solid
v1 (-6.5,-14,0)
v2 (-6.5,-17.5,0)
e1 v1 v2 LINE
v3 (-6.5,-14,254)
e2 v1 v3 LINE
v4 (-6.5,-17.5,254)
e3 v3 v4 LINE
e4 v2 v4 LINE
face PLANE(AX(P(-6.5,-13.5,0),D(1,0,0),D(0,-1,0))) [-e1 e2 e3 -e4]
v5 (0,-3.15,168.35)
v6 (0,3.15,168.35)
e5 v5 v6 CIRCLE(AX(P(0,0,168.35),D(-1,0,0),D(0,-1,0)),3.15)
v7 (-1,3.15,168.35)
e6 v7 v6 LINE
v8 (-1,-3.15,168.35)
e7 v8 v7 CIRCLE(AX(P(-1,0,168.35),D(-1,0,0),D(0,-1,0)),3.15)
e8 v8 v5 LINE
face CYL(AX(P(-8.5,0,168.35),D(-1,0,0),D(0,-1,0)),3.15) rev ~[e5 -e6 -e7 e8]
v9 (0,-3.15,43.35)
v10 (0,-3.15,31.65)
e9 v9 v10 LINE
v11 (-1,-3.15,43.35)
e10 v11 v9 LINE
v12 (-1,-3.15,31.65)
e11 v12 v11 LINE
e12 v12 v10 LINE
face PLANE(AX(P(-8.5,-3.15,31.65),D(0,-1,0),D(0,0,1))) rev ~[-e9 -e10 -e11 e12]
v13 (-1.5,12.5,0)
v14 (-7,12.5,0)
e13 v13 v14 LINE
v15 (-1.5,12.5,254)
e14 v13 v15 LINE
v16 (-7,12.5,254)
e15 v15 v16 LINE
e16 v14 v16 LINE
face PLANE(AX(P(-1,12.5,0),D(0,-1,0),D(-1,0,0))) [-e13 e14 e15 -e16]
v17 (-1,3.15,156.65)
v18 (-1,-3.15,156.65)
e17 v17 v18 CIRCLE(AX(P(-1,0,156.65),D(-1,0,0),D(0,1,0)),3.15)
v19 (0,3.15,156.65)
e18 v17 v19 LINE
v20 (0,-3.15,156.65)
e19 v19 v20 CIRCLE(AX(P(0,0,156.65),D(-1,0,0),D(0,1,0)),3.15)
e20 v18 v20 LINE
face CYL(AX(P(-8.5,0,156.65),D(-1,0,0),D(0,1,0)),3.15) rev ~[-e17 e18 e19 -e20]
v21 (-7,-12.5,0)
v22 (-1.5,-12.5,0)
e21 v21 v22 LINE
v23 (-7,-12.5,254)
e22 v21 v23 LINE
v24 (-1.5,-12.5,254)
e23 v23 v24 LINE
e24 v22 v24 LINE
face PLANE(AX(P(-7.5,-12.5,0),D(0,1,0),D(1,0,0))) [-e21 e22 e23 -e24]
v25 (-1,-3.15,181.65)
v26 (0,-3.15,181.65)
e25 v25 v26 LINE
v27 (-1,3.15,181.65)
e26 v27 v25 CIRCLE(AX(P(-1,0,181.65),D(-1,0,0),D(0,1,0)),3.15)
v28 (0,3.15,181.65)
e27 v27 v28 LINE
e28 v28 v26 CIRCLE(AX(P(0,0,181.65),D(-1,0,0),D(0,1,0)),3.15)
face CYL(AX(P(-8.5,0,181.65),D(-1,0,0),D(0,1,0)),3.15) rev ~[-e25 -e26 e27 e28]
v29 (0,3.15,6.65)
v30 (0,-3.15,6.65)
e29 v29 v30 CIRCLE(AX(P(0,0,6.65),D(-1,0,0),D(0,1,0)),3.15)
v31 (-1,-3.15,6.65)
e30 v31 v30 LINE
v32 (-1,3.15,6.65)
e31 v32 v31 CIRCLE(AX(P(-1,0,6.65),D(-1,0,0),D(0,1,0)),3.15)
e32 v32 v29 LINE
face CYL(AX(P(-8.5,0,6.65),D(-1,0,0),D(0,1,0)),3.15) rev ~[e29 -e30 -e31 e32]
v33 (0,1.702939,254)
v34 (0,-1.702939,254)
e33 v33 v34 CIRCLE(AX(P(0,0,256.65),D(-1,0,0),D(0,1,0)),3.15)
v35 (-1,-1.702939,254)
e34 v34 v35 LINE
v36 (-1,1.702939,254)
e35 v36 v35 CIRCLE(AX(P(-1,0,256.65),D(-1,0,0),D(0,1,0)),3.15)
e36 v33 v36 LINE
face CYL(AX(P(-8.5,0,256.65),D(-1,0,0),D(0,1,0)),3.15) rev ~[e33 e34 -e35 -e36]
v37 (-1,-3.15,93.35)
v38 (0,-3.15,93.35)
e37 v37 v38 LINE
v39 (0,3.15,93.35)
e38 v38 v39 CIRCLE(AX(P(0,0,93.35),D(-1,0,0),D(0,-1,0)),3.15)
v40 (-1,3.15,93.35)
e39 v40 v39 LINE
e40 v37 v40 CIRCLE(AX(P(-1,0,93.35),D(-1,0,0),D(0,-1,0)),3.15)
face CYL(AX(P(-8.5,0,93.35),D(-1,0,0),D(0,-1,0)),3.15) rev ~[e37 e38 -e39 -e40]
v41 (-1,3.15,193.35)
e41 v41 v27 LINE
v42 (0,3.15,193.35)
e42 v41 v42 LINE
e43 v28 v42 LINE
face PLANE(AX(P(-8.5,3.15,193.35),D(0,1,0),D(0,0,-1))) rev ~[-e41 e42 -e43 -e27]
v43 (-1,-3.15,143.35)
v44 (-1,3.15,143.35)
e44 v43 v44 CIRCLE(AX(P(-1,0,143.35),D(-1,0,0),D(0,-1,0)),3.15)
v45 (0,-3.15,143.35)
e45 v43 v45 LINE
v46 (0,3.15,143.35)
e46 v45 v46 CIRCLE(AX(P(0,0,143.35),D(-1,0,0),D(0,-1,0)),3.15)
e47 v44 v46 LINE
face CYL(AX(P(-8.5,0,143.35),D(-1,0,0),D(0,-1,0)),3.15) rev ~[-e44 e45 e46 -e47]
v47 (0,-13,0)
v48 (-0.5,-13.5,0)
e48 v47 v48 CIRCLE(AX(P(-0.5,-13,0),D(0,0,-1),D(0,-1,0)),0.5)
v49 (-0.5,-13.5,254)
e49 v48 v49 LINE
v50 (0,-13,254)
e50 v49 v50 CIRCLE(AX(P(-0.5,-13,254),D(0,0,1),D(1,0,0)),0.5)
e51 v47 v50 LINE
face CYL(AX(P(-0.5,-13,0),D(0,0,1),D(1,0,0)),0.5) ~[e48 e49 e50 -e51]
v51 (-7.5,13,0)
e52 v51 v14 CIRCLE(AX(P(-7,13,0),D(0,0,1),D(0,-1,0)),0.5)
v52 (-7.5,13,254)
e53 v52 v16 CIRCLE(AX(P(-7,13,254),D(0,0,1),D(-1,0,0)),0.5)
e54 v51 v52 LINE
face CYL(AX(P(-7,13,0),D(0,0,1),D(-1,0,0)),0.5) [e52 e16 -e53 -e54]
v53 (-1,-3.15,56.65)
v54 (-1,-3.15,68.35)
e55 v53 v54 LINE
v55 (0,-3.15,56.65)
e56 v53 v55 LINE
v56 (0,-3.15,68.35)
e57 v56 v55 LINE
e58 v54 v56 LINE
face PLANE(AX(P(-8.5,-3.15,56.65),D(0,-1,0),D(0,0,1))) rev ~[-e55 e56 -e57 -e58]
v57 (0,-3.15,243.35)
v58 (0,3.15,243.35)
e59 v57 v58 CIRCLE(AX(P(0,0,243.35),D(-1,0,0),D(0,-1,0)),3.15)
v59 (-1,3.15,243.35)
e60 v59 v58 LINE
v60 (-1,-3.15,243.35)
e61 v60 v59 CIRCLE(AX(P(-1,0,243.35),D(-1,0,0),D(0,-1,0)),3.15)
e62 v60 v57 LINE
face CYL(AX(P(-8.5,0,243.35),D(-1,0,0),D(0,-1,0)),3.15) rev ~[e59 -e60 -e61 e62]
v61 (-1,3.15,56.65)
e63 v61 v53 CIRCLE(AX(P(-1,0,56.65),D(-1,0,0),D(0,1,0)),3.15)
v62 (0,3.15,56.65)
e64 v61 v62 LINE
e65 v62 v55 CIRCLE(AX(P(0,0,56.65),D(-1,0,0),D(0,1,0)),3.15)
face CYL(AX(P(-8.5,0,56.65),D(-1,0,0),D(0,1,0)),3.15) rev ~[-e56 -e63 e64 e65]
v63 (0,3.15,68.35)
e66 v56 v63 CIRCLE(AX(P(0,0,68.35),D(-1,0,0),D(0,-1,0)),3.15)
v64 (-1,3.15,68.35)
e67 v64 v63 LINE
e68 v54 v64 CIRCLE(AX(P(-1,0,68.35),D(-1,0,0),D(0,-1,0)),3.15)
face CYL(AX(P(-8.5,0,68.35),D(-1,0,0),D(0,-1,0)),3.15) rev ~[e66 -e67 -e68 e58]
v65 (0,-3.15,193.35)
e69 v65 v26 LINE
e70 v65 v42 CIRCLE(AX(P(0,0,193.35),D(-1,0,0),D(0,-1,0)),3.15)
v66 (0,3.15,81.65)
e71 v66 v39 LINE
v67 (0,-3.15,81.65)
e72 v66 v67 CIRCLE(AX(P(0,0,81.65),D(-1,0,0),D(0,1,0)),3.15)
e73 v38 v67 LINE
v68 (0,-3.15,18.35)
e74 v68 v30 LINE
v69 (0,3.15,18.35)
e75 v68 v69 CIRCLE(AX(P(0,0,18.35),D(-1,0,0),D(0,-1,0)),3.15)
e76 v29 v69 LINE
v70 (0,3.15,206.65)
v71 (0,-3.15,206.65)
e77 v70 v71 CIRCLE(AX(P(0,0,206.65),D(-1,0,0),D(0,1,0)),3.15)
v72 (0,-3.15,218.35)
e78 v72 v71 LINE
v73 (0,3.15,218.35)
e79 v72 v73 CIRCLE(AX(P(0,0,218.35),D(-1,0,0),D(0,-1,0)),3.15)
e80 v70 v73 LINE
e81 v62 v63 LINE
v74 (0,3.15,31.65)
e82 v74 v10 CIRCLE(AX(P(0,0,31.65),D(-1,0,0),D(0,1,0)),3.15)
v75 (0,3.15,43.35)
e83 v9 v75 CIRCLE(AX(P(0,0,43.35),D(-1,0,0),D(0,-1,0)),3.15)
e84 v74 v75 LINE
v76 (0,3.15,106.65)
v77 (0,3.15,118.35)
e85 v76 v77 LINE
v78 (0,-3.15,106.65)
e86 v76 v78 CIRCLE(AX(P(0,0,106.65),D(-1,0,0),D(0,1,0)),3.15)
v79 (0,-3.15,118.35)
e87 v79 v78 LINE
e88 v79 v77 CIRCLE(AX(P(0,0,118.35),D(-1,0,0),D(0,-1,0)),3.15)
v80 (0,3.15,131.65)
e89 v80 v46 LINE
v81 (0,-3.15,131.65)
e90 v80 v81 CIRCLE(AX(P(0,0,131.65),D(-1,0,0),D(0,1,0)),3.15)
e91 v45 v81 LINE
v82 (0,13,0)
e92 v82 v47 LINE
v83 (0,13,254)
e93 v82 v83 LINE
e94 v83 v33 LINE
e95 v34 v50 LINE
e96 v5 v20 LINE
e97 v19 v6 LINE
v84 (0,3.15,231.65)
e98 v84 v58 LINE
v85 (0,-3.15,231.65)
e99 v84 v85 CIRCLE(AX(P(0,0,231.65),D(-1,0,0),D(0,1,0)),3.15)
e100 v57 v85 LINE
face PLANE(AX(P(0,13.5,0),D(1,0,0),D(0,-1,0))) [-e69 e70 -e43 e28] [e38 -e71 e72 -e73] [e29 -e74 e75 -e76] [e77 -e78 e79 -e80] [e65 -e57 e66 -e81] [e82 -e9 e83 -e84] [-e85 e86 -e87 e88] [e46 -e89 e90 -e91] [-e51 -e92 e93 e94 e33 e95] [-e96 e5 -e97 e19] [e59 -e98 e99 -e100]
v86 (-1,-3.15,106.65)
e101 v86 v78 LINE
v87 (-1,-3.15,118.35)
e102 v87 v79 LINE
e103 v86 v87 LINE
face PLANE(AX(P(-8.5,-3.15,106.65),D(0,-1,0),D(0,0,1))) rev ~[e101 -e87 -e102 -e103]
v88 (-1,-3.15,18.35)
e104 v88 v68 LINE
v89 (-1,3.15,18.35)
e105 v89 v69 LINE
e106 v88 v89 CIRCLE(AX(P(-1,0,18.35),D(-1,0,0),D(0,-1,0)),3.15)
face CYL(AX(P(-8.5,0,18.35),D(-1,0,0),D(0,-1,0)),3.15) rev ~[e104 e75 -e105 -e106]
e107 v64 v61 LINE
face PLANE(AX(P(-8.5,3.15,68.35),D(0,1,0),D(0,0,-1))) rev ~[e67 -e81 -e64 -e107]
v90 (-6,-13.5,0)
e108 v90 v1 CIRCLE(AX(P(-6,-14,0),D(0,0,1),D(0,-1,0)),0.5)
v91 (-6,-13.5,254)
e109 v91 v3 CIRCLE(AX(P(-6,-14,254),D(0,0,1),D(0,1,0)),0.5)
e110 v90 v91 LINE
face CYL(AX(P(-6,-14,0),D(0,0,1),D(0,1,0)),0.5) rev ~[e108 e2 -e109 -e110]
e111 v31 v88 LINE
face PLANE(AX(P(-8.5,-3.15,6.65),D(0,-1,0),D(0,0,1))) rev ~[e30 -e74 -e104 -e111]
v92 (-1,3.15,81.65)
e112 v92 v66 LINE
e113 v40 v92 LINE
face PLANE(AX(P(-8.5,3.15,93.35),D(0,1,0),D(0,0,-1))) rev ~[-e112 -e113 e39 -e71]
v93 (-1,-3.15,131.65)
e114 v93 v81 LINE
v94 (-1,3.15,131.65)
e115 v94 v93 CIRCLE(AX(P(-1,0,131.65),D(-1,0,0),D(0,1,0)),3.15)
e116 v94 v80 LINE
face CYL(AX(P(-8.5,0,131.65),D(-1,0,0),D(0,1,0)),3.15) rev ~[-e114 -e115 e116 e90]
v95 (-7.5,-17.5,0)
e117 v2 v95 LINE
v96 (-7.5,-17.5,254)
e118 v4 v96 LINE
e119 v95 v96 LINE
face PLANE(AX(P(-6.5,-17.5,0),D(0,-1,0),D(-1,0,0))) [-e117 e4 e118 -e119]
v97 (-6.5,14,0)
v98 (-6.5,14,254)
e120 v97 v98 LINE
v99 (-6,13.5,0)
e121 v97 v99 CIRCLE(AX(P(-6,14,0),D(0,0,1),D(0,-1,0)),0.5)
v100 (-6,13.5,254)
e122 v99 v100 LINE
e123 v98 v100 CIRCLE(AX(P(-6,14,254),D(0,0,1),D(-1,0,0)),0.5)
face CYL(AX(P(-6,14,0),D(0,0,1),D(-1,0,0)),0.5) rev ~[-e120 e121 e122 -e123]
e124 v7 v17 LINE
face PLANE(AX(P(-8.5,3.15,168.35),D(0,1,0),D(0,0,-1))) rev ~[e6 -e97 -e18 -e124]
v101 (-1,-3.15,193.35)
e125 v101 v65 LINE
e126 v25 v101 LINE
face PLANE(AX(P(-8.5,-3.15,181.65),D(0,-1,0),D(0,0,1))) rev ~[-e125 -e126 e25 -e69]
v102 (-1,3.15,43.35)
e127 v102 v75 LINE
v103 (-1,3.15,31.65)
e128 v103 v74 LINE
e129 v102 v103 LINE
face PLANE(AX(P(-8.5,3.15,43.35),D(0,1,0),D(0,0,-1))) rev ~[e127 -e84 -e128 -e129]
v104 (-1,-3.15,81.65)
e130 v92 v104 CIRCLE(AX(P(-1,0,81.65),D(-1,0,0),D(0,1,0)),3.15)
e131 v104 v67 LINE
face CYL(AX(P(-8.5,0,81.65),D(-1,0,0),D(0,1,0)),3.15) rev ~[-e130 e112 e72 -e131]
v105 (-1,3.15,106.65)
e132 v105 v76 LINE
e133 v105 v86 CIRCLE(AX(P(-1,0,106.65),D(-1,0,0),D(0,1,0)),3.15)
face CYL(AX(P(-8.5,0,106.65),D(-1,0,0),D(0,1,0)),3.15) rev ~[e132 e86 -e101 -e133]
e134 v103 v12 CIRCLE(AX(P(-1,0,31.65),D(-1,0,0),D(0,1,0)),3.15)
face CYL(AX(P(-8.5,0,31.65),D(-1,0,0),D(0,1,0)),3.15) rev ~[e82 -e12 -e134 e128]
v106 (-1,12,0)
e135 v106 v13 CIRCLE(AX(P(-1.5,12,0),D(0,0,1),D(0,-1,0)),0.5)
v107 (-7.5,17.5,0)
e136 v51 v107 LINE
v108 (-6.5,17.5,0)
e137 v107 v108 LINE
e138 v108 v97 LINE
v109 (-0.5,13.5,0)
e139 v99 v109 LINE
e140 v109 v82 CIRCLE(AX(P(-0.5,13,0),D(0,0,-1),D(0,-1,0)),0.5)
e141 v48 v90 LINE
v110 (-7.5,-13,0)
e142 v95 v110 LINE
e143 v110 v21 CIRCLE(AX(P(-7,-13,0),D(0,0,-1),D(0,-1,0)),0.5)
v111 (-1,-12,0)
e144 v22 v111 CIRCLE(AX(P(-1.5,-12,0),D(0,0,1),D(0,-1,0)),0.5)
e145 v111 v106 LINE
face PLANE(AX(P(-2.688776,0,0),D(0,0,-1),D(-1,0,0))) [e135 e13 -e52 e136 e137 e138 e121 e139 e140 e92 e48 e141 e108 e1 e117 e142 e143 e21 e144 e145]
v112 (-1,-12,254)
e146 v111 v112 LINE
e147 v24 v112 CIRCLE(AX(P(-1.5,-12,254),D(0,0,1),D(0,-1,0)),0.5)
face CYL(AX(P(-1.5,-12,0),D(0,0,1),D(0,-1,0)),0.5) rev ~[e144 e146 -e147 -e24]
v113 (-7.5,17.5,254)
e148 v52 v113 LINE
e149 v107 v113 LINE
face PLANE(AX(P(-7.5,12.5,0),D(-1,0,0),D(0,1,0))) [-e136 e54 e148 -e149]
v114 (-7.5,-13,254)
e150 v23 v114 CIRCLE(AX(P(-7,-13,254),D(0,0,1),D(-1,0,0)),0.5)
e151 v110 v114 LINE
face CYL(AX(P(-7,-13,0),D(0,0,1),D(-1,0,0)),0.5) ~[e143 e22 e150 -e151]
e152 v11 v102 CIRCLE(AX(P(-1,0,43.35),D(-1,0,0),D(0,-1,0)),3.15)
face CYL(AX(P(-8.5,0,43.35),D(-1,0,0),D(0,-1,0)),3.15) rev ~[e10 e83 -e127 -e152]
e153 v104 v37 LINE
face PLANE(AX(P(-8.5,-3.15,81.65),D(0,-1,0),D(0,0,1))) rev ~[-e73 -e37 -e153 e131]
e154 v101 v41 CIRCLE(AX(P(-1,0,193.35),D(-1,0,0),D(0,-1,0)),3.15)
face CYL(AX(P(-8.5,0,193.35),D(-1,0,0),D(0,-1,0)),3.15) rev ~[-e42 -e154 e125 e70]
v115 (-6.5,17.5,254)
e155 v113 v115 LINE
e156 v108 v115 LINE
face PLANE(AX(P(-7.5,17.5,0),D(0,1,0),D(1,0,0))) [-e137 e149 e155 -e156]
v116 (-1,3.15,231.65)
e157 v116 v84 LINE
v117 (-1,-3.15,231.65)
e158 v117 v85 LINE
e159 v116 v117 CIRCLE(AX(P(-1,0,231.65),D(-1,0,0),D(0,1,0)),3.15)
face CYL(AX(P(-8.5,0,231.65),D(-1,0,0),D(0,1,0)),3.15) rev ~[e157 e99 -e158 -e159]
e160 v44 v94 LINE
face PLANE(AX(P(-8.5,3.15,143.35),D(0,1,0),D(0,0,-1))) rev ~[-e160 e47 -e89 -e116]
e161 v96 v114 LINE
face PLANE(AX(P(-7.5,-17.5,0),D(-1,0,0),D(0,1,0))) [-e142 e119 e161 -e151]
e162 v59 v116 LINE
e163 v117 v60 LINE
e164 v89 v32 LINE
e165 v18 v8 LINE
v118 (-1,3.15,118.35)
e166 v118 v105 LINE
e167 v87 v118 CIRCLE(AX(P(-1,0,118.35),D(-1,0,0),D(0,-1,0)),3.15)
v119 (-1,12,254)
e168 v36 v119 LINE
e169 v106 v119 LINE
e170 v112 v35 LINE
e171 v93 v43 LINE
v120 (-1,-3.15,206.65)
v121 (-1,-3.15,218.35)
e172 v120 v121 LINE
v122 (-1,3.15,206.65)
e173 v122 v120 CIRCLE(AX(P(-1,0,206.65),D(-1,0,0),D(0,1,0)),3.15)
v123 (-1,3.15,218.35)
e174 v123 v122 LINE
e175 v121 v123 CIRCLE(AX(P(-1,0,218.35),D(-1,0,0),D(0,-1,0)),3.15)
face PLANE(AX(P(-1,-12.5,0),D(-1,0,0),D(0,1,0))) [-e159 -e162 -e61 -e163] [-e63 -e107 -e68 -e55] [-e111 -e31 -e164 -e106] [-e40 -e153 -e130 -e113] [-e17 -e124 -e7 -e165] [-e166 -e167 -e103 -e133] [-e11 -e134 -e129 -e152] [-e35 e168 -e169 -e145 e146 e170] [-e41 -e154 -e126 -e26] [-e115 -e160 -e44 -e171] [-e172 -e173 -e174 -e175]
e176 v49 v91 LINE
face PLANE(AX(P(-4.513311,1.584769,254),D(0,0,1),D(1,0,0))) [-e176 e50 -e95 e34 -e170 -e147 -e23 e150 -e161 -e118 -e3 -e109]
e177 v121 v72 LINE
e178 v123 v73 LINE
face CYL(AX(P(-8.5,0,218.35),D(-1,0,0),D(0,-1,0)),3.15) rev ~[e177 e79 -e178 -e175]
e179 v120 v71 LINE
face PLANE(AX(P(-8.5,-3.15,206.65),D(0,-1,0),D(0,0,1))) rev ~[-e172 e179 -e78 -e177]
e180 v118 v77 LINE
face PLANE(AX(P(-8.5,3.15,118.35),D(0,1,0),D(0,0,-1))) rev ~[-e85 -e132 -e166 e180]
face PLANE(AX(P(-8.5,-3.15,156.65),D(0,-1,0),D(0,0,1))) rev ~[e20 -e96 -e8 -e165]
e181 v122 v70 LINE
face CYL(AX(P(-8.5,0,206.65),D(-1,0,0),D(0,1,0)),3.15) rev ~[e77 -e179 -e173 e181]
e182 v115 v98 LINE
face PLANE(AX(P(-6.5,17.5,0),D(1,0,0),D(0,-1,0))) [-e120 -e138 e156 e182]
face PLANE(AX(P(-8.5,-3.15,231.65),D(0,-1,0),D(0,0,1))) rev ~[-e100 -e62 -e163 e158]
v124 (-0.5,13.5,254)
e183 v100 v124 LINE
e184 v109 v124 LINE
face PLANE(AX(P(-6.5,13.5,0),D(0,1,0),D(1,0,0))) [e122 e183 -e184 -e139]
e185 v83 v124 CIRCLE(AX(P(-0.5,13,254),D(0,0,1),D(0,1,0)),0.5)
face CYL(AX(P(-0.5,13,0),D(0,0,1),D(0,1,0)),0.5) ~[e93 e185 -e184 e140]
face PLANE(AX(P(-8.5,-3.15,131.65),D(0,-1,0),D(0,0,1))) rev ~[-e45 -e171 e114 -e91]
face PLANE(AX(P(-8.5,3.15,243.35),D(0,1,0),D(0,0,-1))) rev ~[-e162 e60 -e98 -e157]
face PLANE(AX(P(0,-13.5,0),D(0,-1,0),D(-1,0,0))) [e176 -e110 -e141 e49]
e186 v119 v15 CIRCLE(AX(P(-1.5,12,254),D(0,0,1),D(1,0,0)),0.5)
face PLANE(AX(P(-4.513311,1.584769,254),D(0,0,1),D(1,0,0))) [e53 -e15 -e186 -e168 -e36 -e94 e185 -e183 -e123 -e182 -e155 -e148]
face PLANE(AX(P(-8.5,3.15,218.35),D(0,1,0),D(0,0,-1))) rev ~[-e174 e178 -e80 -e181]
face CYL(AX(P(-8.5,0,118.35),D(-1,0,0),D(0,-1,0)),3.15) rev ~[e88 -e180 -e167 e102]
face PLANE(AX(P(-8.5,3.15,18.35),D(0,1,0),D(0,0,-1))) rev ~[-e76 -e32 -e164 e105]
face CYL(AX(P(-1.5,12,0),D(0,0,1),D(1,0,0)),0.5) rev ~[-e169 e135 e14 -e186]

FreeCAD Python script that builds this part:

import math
import FreeCAD as App
import Part
import Sketcher


def edges_at(feature, points):
    """Names of the edges that pass closest to the given points."""
    edges = feature.Shape.Edges
    near = lambda p: min(range(len(edges)), key=lambda i: edges[i].distToShape(Part.Vertex(*p))[0])
    return sorted({f"Edge{near(p) + 1}" for p in points})


def add_polygon(sketch, points):
    """Adds a closed chain of lines whose ends are joined by coincident constraints."""
    first, n = sketch.GeometryCount, len(points)
    for a, b in zip(points, points[1:] + points[:1]):
        sketch.addGeometry(Part.LineSegment(App.Vector(*a, 0), App.Vector(*b, 0)), False)
    for i in range(n):
        sketch.addConstraint(Sketcher.Constraint("Coincident", first + i, 2, first + (i + 1) % n, 1))

doc = App.newDocument("Part")
body = doc.addObject("PartDesign::Body", "Body")

# Sketch on XY plane
sketch1 = doc.addObject("Sketcher::SketchObject", "Sketch")
body.addObject(sketch1)
sketch1.AttachmentSupport = (doc.XY_Plane, [""])
sketch1.MapMode = "FlatFace"
add_polygon(sketch1, [(-6.5, 13.5), (-6.5, 17.5), (-7.5, 17.5), (-7.5, 12.5), (-1, 12.5), (-1, -12.5), (-7.5, -12.5), (-7.5, -17.5), (-6.5, -17.5), (-6.5, -13.5), (0, -13.5), (0, 13.5)])  # lines 0-11
sketch1.addConstraint(Sketcher.Constraint("Vertical", 0))
sketch1.addConstraint(Sketcher.Constraint("Horizontal", 1))
sketch1.addConstraint(Sketcher.Constraint("Vertical", 2))
sketch1.addConstraint(Sketcher.Constraint("Horizontal", 3))
sketch1.addConstraint(Sketcher.Constraint("Vertical", 4))
sketch1.addConstraint(Sketcher.Constraint("Horizontal", 5))
sketch1.addConstraint(Sketcher.Constraint("Vertical", 6))
sketch1.addConstraint(Sketcher.Constraint("Horizontal", 7))
sketch1.addConstraint(Sketcher.Constraint("Vertical", 8))
sketch1.addConstraint(Sketcher.Constraint("Horizontal", 9))
sketch1.addConstraint(Sketcher.Constraint("Vertical", 10))
sketch1.addConstraint(Sketcher.Constraint("Horizontal", 11))
sketch1.addConstraint(Sketcher.Constraint("Symmetric", 9, 2, 10, 2, -1, 1))
sketch1.addConstraint(Sketcher.Constraint("Symmetric", 2, 2, 5, 2, -1))
sketch1.addConstraint(Sketcher.Constraint("Symmetric", 0, 2, 7, 2, -1))
sketch1.addConstraint(Sketcher.Constraint("Equal", 5, 9))
sketch1.addConstraint(Sketcher.Constraint("DistanceX", 1, 2, 1, 1, 1.0))
sketch1.addConstraint(Sketcher.Constraint("DistanceY", 0, 1, 0, 2, 4.0))
sketch1.addConstraint(Sketcher.Constraint("DistanceY", 2, 2, 2, 1, 5.0))
sketch1.addConstraint(Sketcher.Constraint("DistanceY", 4, 2, 4, 1, 25.0))
sketch1.addConstraint(Sketcher.Constraint("DistanceX", 3, 1, 3, 2, 6.5))
pad1 = doc.addObject("PartDesign::Pad", "Pad")
body.addObject(pad1)
pad1.Profile = sketch1
pad1.Length = 449.2625

# Sketch on YZ plane
sketch2 = doc.addObject("Sketcher::SketchObject", "Sketch001")
body.addObject(sketch2)
sketch2.AttachmentSupport = (doc.YZ_Plane, [""])
sketch2.MapMode = "FlatFace"
sketch2.AttachmentOffset = App.Placement(App.Vector(0, 0, -8.5), App.Rotation())
sketch2.addGeometry(Part.LineSegment(App.Vector(-3.1, 18.4, 0), App.Vector(-3.1, 6.7, 0)), False)
sketch2.addGeometry(Part.ArcOfCircle(Part.Circle(App.Vector(0, 6.7, 0), App.Vector(0, 0, 1), 3.1), math.radians(180), math.radians(360)), False)
sketch2.addGeometry(Part.LineSegment(App.Vector(3.1, 6.7, 0), App.Vector(3.1, 18.4, 0)), False)
sketch2.addGeometry(Part.ArcOfCircle(Part.Circle(App.Vector(0, 18.4, 0), App.Vector(0, 0, 1), 3.1), math.radians(0), math.radians(180)), False)
sketch2.addConstraint(Sketcher.Constraint("Tangent", 0, 2, 1, 1))
sketch2.addConstraint(Sketcher.Constraint("Tangent", 1, 2, 2, 1))
sketch2.addConstraint(Sketcher.Constraint("Tangent", 2, 2, 3, 1))
sketch2.addConstraint(Sketcher.Constraint("Tangent", 3, 2, 0, 1))
sketch2.addConstraint(Sketcher.Constraint("Vertical", 0))
sketch2.addConstraint(Sketcher.Constraint("Vertical", 2))
sketch2.addConstraint(Sketcher.Constraint("PointOnObject", 1, 3, -2))
sketch2.addConstraint(Sketcher.Constraint("Radius", 1, 3.15))
sketch2.addConstraint(Sketcher.Constraint("DistanceY", 0, 2, 0, 1, 11.7))
sketch2.addConstraint(Sketcher.Constraint("DistanceY", -1, 1, 1, 3, 6.65))
pocket1 = doc.addObject("PartDesign::Pocket", "Pocket")
body.addObject(pocket1)
pocket1.Profile = sketch2
pocket1.Length = 9.5
pocket1.Reversed = True
doc.recompute()

linearpattern = doc.addObject("PartDesign::LinearPattern", "LinearPattern")
body.addObject(linearpattern)
linearpattern.Originals = [pocket1]
linearpattern.Direction = (doc.Z_Axis, [""])
linearpattern.Mode = "offset"
linearpattern.Offset = 25
linearpattern.Occurrences = 18
body.Tip = linearpattern
doc.recompute()

fillet = doc.addObject("PartDesign::Fillet", "Fillet")
body.addObject(fillet)
fillet.Base = (linearpattern, edges_at(linearpattern, [
    (-6.5, 13.5, 224.631),
    (0, 13.5, 224.631),
    (0, -13.5, 224.631),
    (-6.5, -13.5, 224.631),
    (-7.5, -12.5, 224.631),
    (-1, -12.5, 224.631),
    (-1, 12.5, 224.631),
    (-7.5, 12.5, 224.631),
]))
fillet.Radius = 0.5

# Sketch on XY plane
sketch3 = doc.addObject("Sketcher::SketchObject", "Sketch002")
body.addObject(sketch3)
sketch3.AttachmentSupport = (doc.XY_Plane, [""])
sketch3.MapMode = "FlatFace"
sketch3.AttachmentOffset = App.Placement(App.Vector(0, 0, 449.2625), App.Rotation())
add_polygon(sketch3, [(-11, 22), (-11, -18), (2, -18), (2, 22)])  # lines 0-3
sketch3.addConstraint(Sketcher.Constraint("Vertical", 0))
sketch3.addConstraint(Sketcher.Constraint("Horizontal", 1))
sketch3.addConstraint(Sketcher.Constraint("Vertical", 2))
sketch3.addConstraint(Sketcher.Constraint("Horizontal", 3))
sketch3.addConstraint(Sketcher.Constraint("DistanceX", 1, 1, 1, 2, 13.158199))
sketch3.addConstraint(Sketcher.Constraint("DistanceY", 0, 2, 0, 1, 40.042206))
sketch3.addConstraint(Sketcher.Constraint("DistanceX", 0, 2, -1, 1, 11.092411))
sketch3.addConstraint(Sketcher.Constraint("DistanceY", 0, 2, -1, 1, 18.436334))
pocket2 = doc.addObject("PartDesign::Pocket", "Pocket001")
body.addObject(pocket2)
pocket2.Profile = sketch3
pocket2.Length = 195.2625

doc.recompute()
